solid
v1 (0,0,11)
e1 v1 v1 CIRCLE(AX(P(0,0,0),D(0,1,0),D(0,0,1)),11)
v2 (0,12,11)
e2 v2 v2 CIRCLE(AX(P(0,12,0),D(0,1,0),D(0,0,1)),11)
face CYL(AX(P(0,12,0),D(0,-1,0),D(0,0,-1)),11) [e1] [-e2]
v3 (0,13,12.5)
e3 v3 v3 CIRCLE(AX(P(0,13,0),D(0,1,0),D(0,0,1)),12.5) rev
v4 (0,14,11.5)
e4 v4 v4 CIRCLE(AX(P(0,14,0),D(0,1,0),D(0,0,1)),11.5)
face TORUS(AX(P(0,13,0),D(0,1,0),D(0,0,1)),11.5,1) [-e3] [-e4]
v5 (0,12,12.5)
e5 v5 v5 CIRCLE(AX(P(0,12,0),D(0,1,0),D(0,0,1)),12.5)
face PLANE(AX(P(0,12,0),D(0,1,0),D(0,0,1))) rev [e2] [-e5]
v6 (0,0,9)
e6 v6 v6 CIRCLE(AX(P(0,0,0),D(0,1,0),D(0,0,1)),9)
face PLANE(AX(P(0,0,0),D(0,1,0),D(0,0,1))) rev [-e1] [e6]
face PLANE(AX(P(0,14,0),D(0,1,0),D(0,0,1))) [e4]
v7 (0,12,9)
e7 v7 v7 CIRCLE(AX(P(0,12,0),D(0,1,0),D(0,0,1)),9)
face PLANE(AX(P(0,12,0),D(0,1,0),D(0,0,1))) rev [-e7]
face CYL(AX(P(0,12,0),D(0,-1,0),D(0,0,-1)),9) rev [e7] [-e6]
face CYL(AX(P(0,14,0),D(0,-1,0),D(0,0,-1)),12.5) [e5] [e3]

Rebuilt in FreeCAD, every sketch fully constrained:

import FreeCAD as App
import Part
import Sketcher

V = App.Vector
Q = App.Units.Quantity


def edges_at(feature, points):
    """Names of the edges that pass closest to the given points."""
    edges = feature.Shape.Edges
    near = lambda p: min(range(len(edges)), key=lambda i: edges[i].distToShape(Part.Vertex(*p))[0])
    return sorted({f"Edge{near(p) + 1}" for p in points})

doc = App.newDocument("Part")
body = doc.addObject("PartDesign::Body", "Body")

sketch1 = body.newObject("Sketcher::SketchObject", "Sketch")
sketch1.AttachmentSupport = (doc.getObject("XZ_Plane"), [""])
sketch1.MapMode = "FlatFace"
sketch1.addGeometry(Part.Circle(V(0, 0, 0), V(0, 0, 1), 11), False)
sketch1.addGeometry(Part.Circle(V(0, 0, 0), V(0, 0, 1), 9), False)
sketch1.addConstraint(Sketcher.Constraint("Coincident", 0, 3, -1, 1))
sketch1.addConstraint(Sketcher.Constraint("Coincident", 1, 3, -1, 1))
sketch1.addConstraint(Sketcher.Constraint("Diameter", 0, Q("22 mm")))
sketch1.addConstraint(Sketcher.Constraint("Diameter", 1, Q("18 mm")))
pad1 = body.newObject("PartDesign::Pad", "Pad")
pad1.Profile = sketch1
pad1.Length = 12
pad1.Reversed = True

sketch2 = body.newObject("Sketcher::SketchObject", "Sketch001")
sketch2.AttachmentSupport = (doc.getObject("XZ_Plane"), [""])
sketch2.MapMode = "FlatFace"
sketch2.AttachmentOffset = App.Placement(V(0, 0, -12), App.Rotation())
sketch2.addGeometry(Part.Circle(V(0, 0, 0), V(0, 0, 1), 12), False)
sketch2.addConstraint(Sketcher.Constraint("Coincident", 0, 3, -1, 1))
sketch2.addConstraint(Sketcher.Constraint("Diameter", 0, Q("25 mm")))
pad2 = body.newObject("PartDesign::Pad", "Pad001")
pad2.Profile = sketch2
pad2.Length = 2
pad2.Reversed = True
doc.recompute()

fillet = body.newObject("PartDesign::Fillet", "Fillet")
fillet.Base = (pad2, edges_at(pad2, [(0, 14, -12.5)]))
fillet.Radius = 1

doc.recompute()
